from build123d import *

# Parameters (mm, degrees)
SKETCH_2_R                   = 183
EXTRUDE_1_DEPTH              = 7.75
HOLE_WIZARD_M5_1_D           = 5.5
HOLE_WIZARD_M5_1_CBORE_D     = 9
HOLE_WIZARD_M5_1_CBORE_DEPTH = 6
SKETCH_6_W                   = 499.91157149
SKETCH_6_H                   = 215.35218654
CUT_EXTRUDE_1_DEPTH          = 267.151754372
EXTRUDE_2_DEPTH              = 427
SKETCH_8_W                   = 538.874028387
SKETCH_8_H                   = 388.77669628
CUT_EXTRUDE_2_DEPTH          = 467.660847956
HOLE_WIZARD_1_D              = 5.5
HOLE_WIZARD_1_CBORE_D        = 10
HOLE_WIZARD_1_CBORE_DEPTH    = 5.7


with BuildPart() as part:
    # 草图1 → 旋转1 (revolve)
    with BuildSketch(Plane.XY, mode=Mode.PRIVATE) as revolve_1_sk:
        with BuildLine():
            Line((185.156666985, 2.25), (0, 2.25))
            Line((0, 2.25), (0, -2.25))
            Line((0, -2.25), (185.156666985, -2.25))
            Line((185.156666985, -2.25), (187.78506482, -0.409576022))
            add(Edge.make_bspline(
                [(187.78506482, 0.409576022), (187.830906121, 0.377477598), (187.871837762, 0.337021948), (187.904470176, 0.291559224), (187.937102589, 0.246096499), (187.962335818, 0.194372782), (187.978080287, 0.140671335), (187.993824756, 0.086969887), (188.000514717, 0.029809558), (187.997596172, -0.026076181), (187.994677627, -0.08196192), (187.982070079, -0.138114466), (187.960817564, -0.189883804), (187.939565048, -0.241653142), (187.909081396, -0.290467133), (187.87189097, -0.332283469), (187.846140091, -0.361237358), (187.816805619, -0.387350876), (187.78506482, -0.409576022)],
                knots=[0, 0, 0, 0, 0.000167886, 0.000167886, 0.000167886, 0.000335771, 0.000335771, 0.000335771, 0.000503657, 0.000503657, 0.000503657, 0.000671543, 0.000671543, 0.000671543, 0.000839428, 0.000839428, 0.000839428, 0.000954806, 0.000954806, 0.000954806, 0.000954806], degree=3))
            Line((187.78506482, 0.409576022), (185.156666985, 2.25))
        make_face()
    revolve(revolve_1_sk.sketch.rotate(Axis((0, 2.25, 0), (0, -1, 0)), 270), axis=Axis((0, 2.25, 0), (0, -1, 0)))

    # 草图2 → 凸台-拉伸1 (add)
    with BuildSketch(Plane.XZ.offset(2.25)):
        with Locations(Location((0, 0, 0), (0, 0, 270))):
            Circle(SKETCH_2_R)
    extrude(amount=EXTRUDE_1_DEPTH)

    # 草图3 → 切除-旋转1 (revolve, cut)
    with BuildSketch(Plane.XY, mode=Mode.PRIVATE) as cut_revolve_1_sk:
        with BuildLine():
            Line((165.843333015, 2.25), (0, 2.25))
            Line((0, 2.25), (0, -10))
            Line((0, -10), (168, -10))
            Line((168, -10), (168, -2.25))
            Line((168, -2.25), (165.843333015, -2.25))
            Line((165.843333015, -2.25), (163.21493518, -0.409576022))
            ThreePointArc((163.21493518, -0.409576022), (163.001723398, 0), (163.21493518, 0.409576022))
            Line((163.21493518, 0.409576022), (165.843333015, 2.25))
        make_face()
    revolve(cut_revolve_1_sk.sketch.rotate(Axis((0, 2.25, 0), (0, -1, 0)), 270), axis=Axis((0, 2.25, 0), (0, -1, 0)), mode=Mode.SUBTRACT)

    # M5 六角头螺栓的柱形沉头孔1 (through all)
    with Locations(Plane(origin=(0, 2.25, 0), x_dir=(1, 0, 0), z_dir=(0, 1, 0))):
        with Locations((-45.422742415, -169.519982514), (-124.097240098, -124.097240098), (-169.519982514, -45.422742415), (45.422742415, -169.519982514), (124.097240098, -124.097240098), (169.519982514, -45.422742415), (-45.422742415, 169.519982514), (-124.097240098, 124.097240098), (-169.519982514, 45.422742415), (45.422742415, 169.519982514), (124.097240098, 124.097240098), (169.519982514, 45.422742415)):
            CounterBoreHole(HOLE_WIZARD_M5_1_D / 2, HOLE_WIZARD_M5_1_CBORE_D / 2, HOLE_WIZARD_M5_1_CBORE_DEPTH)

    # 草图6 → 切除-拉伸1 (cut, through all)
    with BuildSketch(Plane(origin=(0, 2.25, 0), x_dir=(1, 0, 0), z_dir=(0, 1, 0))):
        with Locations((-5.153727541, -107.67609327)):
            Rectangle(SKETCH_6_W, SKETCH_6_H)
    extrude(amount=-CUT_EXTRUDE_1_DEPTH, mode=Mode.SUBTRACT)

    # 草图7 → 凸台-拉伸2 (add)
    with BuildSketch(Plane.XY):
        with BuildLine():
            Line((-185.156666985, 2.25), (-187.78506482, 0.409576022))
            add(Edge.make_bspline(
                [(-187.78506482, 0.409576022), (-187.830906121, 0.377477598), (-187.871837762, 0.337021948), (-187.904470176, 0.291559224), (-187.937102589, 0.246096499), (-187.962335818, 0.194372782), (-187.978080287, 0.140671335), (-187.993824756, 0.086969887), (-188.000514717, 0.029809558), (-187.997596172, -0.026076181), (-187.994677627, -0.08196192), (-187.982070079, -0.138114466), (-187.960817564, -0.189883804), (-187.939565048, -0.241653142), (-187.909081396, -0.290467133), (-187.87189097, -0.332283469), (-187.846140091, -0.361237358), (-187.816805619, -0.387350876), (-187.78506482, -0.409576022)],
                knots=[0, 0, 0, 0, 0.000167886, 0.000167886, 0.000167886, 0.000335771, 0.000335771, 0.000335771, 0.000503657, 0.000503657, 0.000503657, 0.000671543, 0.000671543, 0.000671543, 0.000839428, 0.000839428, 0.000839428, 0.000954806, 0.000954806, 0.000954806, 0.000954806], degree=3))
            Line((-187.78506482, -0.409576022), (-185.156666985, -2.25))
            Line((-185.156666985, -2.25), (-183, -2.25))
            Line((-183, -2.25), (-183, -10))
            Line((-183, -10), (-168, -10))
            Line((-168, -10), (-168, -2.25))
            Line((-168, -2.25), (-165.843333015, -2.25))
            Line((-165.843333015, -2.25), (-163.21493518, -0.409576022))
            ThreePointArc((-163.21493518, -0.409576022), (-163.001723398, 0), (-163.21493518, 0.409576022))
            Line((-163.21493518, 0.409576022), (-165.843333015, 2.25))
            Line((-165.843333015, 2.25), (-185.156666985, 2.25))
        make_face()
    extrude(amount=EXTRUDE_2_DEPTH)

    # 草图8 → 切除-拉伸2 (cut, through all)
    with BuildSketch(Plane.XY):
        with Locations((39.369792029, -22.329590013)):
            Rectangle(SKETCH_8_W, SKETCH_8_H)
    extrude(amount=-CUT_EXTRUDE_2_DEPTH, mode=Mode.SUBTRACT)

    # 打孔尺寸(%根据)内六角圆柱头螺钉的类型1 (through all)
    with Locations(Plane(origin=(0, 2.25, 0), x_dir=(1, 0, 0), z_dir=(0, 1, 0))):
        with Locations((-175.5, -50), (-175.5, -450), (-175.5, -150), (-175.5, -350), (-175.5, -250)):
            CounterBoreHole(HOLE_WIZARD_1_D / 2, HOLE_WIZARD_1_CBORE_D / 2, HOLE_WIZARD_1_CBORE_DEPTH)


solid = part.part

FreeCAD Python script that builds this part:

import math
import FreeCAD as App
import Part
import Sketcher
from FreeCAD import Vector
Q = App.Units.Quantity


def add_polygon(sketch, points):
    """Adds a closed chain of lines whose ends are joined by coincident constraints."""
    first, n = sketch.GeometryCount, len(points)
    for a, b in zip(points, points[1:] + points[:1]):
        sketch.addGeometry(Part.LineSegment(App.Vector(*a, 0), App.Vector(*b, 0)), False)
    for i in range(n):
        sketch.addConstraint(Sketcher.Constraint("Coincident", first + i, 2, first + (i + 1) % n, 1))

doc = App.newDocument("Part")
body = doc.addObject("PartDesign::Body", "Body")

sketch1 = body.newObject("Sketcher::SketchObject", "Sketch")
sketch1.AttachmentSupport = (doc.getObject("XY_Plane"), [""])
sketch1.MapMode = "FlatFace"
sketch1.addGeometry(Part.LineSegment(Vector(185.156667, 2.25, 0), Vector(0, 2.25, 0)), False)
sketch1.addGeometry(Part.LineSegment(Vector(0, 2.25, 0), Vector(0, -2.25, 0)), False)
sketch1.addGeometry(Part.LineSegment(Vector(0, -2.25, 0), Vector(185.156667, -2.25, 0)), False)
sketch1.addGeometry(Part.LineSegment(Vector(185.156667, -2.25, 0), Vector(187.785065, -0.409576, 0)), False)
sketch1.addGeometry(Part.BSplineCurve([Vector(187.785065, 0.409576, 0), Vector(187.830906, 0.377478, 0), Vector(187.871838, 0.337022, 0), Vector(187.90447, 0.291559, 0), Vector(187.937103, 0.246096, 0), Vector(187.962336, 0.194373, 0), Vector(187.97808, 0.140671, 0), Vector(187.993825, 0.08697, 0), Vector(188.000515, 0.02981, 0), Vector(187.997596, -0.026076, 0), Vector(187.994678, -0.081962, 0), Vector(187.98207, -0.138114, 0), Vector(187.960818, -0.189884, 0), Vector(187.939565, -0.241653, 0), Vector(187.909081, -0.290467, 0), Vector(187.871891, -0.332283, 0), Vector(187.84614, -0.361237, 0), Vector(187.816806, -0.387351, 0), Vector(187.785065, -0.409576, 0)], [4, 3, 3, 3, 3, 3, 4], [0, 0.000167886, 0.000335771, 0.000503657, 0.000671543, 0.000839428, 0.000954806], False, 3, [1, 1, 1, 1, 1, 1, 1, 1, 1, 1, 1, 1, 1, 1, 1, 1, 1, 1, 1], False), False)
sketch1.addGeometry(Part.LineSegment(Vector(187.785065, 0.409576, 0), Vector(185.156667, 2.25, 0)), False)
sketch1.addConstraint(Sketcher.Constraint("Block", 4))
sketch1.addConstraint(Sketcher.Constraint("Coincident", 0, 2, 1, 1))
sketch1.addConstraint(Sketcher.Constraint("Coincident", 1, 2, 2, 1))
sketch1.addConstraint(Sketcher.Constraint("Coincident", 2, 2, 3, 1))
sketch1.addConstraint(Sketcher.Constraint("Coincident", 3, 2, 4, 2))
sketch1.addConstraint(Sketcher.Constraint("Coincident", 4, 1, 5, 1))
sketch1.addConstraint(Sketcher.Constraint("Coincident", 5, 2, 0, 1))
sketch1.addConstraint(Sketcher.Constraint("Horizontal", 0))
sketch1.addConstraint(Sketcher.Constraint("Vertical", 1))
sketch1.addConstraint(Sketcher.Constraint("Horizontal", 2))
sketch1.addConstraint(Sketcher.Constraint("Symmetric", 0, 2, 1, 2, -1, 1))
sketch1.addConstraint(Sketcher.Constraint("Vertical", 2, 2, 5, 2))
sketch1.addConstraint(Sketcher.Constraint("Angle", 3, Q("35 deg")))
sketch1.addConstraint(Sketcher.Constraint("DistanceY", 1, 2, 1, 1, Q("4.5 mm")))
revolution = body.newObject("PartDesign::Revolution", "Revolution")
revolution.Profile = sketch1
revolution.ReferenceAxis = (sketch1, ["V_Axis"])
revolution.Angle = 360

sketch2 = body.newObject("Sketcher::SketchObject", "Sketch001")
sketch2.AttachmentSupport = (doc.getObject("XZ_Plane"), [""])
sketch2.MapMode = "FlatFace"
sketch2.AttachmentOffset = App.Placement(Vector(0, 0, 2.25), App.Rotation())
sketch2.addGeometry(Part.Circle(Vector(0, 0, 0), Vector(0, 0, 1), 183), False)
sketch2.addConstraint(Sketcher.Constraint("Coincident", 0, 3, -1, 1))
sketch2.addConstraint(Sketcher.Constraint("Diameter", 0, Q("366 mm")))
pad1 = body.newObject("PartDesign::Pad", "Pad")
pad1.Profile = sketch2
pad1.Length = 7.75

sketch3 = body.newObject("Sketcher::SketchObject", "Sketch002")
sketch3.AttachmentSupport = (doc.getObject("XY_Plane"), [""])
sketch3.MapMode = "FlatFace"
sketch3.addGeometry(Part.LineSegment(Vector(165.84, 2.25, 0), Vector(0, 2.25, 0)), False)
sketch3.addGeometry(Part.LineSegment(Vector(0, 2.25, 0), Vector(0, -10, 0)), False)
sketch3.addGeometry(Part.LineSegment(Vector(0, -10, 0), Vector(168, -10, 0)), False)
sketch3.addGeometry(Part.LineSegment(Vector(168, -10, 0), Vector(168, -2.25, 0)), False)
sketch3.addGeometry(Part.LineSegment(Vector(168, -2.25, 0), Vector(165.84, -2.25, 0)), False)
sketch3.addGeometry(Part.LineSegment(Vector(165.84, -2.25, 0), Vector(163.21, -0.41, 0)), False)
sketch3.addGeometry(Part.ArcOfCircle(Part.Circle(Vector(163.5, 0, 0), Vector(0, 0, 1), 0.5), math.radians(125), math.radians(235)), False)
sketch3.addGeometry(Part.LineSegment(Vector(163.21, 0.41, 0), Vector(165.84, 2.25, 0)), False)
sketch3.addConstraint(Sketcher.Constraint("Coincident", 0, 2, 1, 1))
sketch3.addConstraint(Sketcher.Constraint("Coincident", 1, 2, 2, 1))
sketch3.addConstraint(Sketcher.Constraint("Coincident", 2, 2, 3, 1))
sketch3.addConstraint(Sketcher.Constraint("Coincident", 3, 2, 4, 1))
sketch3.addConstraint(Sketcher.Constraint("Coincident", 4, 2, 5, 1))
sketch3.addConstraint(Sketcher.Constraint("Tangent", 5, 2, 6, 2))
sketch3.addConstraint(Sketcher.Constraint("Tangent", 6, 1, 7, 1))
sketch3.addConstraint(Sketcher.Constraint("Coincident", 7, 2, 0, 1))
sketch3.addConstraint(Sketcher.Constraint("Horizontal", 0))
sketch3.addConstraint(Sketcher.Constraint("Vertical", 1))
sketch3.addConstraint(Sketcher.Constraint("Horizontal", 2))
sketch3.addConstraint(Sketcher.Constraint("Vertical", 3))
sketch3.addConstraint(Sketcher.Constraint("Horizontal", 4))
sketch3.addConstraint(Sketcher.Constraint("Symmetric", 5, 2, 6, 1, -1))
sketch3.addConstraint(Sketcher.Constraint("PointOnObject", 0, 2, -2))
sketch3.addConstraint(Sketcher.Constraint("Vertical", 4, 2, 7, 2))
sketch3.addConstraint(Sketcher.Constraint("Radius", 6, Q("0.5 mm")))
sketch3.addConstraint(Sketcher.Constraint("DistanceX", 2, 1, 2, 2, Q("168 mm")))
sketch3.addConstraint(Sketcher.Constraint("Angle", 5, Q("145 deg")))
sketch3.addConstraint(Sketcher.Constraint("DistanceY", 1, 2, -1, 1, Q("10 mm")))
sketch3.addConstraint(Sketcher.Constraint("DistanceY", 1, 2, 1, 1, Q("12.25 mm")))
sketch3.addConstraint(Sketcher.Constraint("DistanceX", 0, 2, 0, 1, Q("165.843333 mm")))
groove = body.newObject("PartDesign::Groove", "Groove")
groove.Profile = sketch3
groove.ReferenceAxis = (sketch3, ["V_Axis"])
groove.Angle = 360

sketch4 = body.newObject("Sketcher::SketchObject", "Sketch003")
sketch4.AttachmentSupport = (doc.getObject("XZ_Plane"), [""])
sketch4.MapMode = "FlatFace"
sketch4.AttachmentOffset = App.Placement(Vector(0, 0, -2.25), App.Rotation())
sketch4.addGeometry(Part.Circle(Vector(-45.4, 169.5, 0), Vector(0, 0, 1), 2.8), False)
sketch4.addGeometry(Part.Circle(Vector(-124.1, 124.1, 0), Vector(0, 0, 1), 2.8), False)
sketch4.addGeometry(Part.Circle(Vector(-169.5, 45.4, 0), Vector(0, 0, 1), 2.8), False)
sketch4.addGeometry(Part.Circle(Vector(45.4, 169.5, 0), Vector(0, 0, 1), 2.8), False)
sketch4.addGeometry(Part.Circle(Vector(124.1, 124.1, 0), Vector(0, 0, 1), 2.8), False)
sketch4.addGeometry(Part.Circle(Vector(169.5, 45.4, 0), Vector(0, 0, 1), 2.8), False)
sketch4.addGeometry(Part.Circle(Vector(-45.4, -169.5, 0), Vector(0, 0, 1), 2.8), False)
sketch4.addGeometry(Part.Circle(Vector(-124.1, -124.1, 0), Vector(0, 0, 1), 2.8), False)
sketch4.addGeometry(Part.Circle(Vector(-169.5, -45.4, 0), Vector(0, 0, 1), 2.8), False)
sketch4.addGeometry(Part.Circle(Vector(45.4, -169.5, 0), Vector(0, 0, 1), 2.8), False)
sketch4.addGeometry(Part.Circle(Vector(124.1, -124.1, 0), Vector(0, 0, 1), 2.8), False)
sketch4.addGeometry(Part.Circle(Vector(169.5, -45.4, 0), Vector(0, 0, 1), 2.8), False)
sketch4.addConstraint(Sketcher.Constraint("Equal", 0, 1))
sketch4.addConstraint(Sketcher.Constraint("Equal", 1, 2))
sketch4.addConstraint(Sketcher.Constraint("Equal", 2, 3))
sketch4.addConstraint(Sketcher.Constraint("Equal", 3, 4))
sketch4.addConstraint(Sketcher.Constraint("Equal", 4, 5))
sketch4.addConstraint(Sketcher.Constraint("Equal", 5, 6))
sketch4.addConstraint(Sketcher.Constraint("Equal", 6, 7))
sketch4.addConstraint(Sketcher.Constraint("Equal", 7, 8))
sketch4.addConstraint(Sketcher.Constraint("Equal", 8, 9))
sketch4.addConstraint(Sketcher.Constraint("Equal", 9, 10))
sketch4.addConstraint(Sketcher.Constraint("Equal", 10, 11))
sketch4.addConstraint(Sketcher.Constraint("Symmetric", 3, 3, 6, 3, -1, 1))
sketch4.addConstraint(Sketcher.Constraint("Symmetric", 4, 3, 7, 3, -1, 1))
sketch4.addConstraint(Sketcher.Constraint("Symmetric", 5, 3, 8, 3, -1, 1))
sketch4.addConstraint(Sketcher.Constraint("Symmetric", 0, 3, 9, 3, -1, 1))
sketch4.addConstraint(Sketcher.Constraint("Symmetric", 1, 3, 10, 3, -1, 1))
sketch4.addConstraint(Sketcher.Constraint("Symmetric", 2, 3, 11, 3, -1, 1))
sketch4.addConstraint(Sketcher.Constraint("Symmetric", 0, 3, 3, 3, -2))
sketch4.addConstraint(Sketcher.Constraint("Symmetric", 1, 3, 4, 3, -2))
sketch4.addConstraint(Sketcher.Constraint("Symmetric", 2, 3, 5, 3, -2))
sketch4.addConstraint(Sketcher.Constraint("Diameter", 0, Q("5.5 mm")))
sketch4.addConstraint(Sketcher.Constraint("DistanceX", 1, 3, -1, 1, Q("124.09724 mm")))
sketch4.addConstraint(Sketcher.Constraint("DistanceY", -1, 1, 1, 3, Q("124.09724 mm")))
sketch4.addConstraint(Sketcher.Constraint("DistanceX", 2, 3, 0, 3, Q("124.09724 mm")))
sketch4.addConstraint(Sketcher.Constraint("DistanceY", 2, 3, 0, 3, Q("124.09724 mm")))
sketch4.addConstraint(Sketcher.Constraint("DistanceX", 0, 3, -1, 1, Q("45.422742 mm")))
sketch4.addConstraint(Sketcher.Constraint("DistanceY", -1, 1, 0, 3, Q("169.519983 mm")))
doc.recompute()
hole = body.newObject("PartDesign::Hole", "Hole")
hole.Profile = sketch4
hole.ThreadType = "None"
hole.Diameter = 5.5
hole.DepthType = "ThroughAll"
hole.HoleCutType = "Counterbore"
hole.HoleCutDiameter = 9
hole.HoleCutDepth = 6
hole.Reversed = True

sketch5 = body.newObject("Sketcher::SketchObject", "Sketch004")
sketch5.AttachmentSupport = (doc.getObject("XZ_Plane"), [""])
sketch5.MapMode = "FlatFace"
sketch5.AttachmentOffset = App.Placement(Vector(0, 0, -2.25), App.Rotation())
add_polygon(sketch5, [(-255, 0), (-255, 215), (245, 215), (245, 0)])
sketch5.addConstraint(Sketcher.Constraint("Vertical", 0))
sketch5.addConstraint(Sketcher.Constraint("Horizontal", 1))
sketch5.addConstraint(Sketcher.Constraint("Vertical", 2))
sketch5.addConstraint(Sketcher.Constraint("Horizontal", 3))
sketch5.addConstraint(Sketcher.Constraint("PointOnObject", 2, 2, -1))
sketch5.addConstraint(Sketcher.Constraint("DistanceX", 1, 1, 1, 2, Q("499.911571 mm")))
sketch5.addConstraint(Sketcher.Constraint("DistanceY", 0, 1, 0, 2, Q("215.352187 mm")))
sketch5.addConstraint(Sketcher.Constraint("DistanceX", -1, 1, 1, 2, Q("244.802058 mm")))
pocket1 = body.newObject("PartDesign::Pocket", "Pocket")
pocket1.Profile = sketch5
pocket1.Type = "ThroughAll"
pocket1.Reversed = True

sketch6 = body.newObject("Sketcher::SketchObject", "Sketch005")
sketch6.AttachmentSupport = (doc.getObject("XY_Plane"), [""])
sketch6.MapMode = "FlatFace"
sketch6.addGeometry(Part.LineSegment(Vector(-185.156667, 2.25, 0), Vector(-187.785065, 0.409576, 0)), False)
sketch6.addGeometry(Part.BSplineCurve([Vector(-187.785065, 0.409576, 0), Vector(-187.830906, 0.377478, 0), Vector(-187.871838, 0.337022, 0), Vector(-187.90447, 0.291559, 0), Vector(-187.937103, 0.246096, 0), Vector(-187.962336, 0.194373, 0), Vector(-187.97808, 0.140671, 0), Vector(-187.993825, 0.08697, 0), Vector(-188.000515, 0.02981, 0), Vector(-187.997596, -0.026076, 0), Vector(-187.994678, -0.081962, 0), Vector(-187.98207, -0.138114, 0), Vector(-187.960818, -0.189884, 0), Vector(-187.939565, -0.241653, 0), Vector(-187.909081, -0.290467, 0), Vector(-187.871891, -0.332283, 0), Vector(-187.84614, -0.361237, 0), Vector(-187.816806, -0.387351, 0), Vector(-187.785065, -0.409576, 0)], [4, 3, 3, 3, 3, 3, 4], [0, 0.000167886, 0.000335771, 0.000503657, 0.000671543, 0.000839428, 0.000954806], False, 3, [1, 1, 1, 1, 1, 1, 1, 1, 1, 1, 1, 1, 1, 1, 1, 1, 1, 1, 1], False), False)
sketch6.addGeometry(Part.LineSegment(Vector(-187.785065, -0.409576, 0), Vector(-185.156667, -2.25, 0)), False)
sketch6.addGeometry(Part.LineSegment(Vector(-185.156667, -2.25, 0), Vector(-183, -2.25, 0)), False)
sketch6.addGeometry(Part.LineSegment(Vector(-183, -2.25, 0), Vector(-183, -10, 0)), False)
sketch6.addGeometry(Part.LineSegment(Vector(-183, -10, 0), Vector(-168, -10, 0)), False)
sketch6.addGeometry(Part.LineSegment(Vector(-168, -10, 0), Vector(-168, -2.25, 0)), False)
sketch6.addGeometry(Part.LineSegment(Vector(-168, -2.25, 0), Vector(-165.843333, -2.25, 0)), False)
sketch6.addGeometry(Part.LineSegment(Vector(-165.843333, -2.25, 0), Vector(-163.214935, -0.409576, 0)), False)
sketch6.addGeometry(Part.ArcOfCircle(Part.Circle(Vector(-163.501723, 0, 0), Vector(0, 0, 1), 0.5), math.radians(-55), math.radians(55)), False)
sketch6.addGeometry(Part.LineSegment(Vector(-163.214935, 0.409576, 0), Vector(-165.843333, 2.25, 0)), False)
sketch6.addGeometry(Part.LineSegment(Vector(-165.843333, 2.25, 0), Vector(-185.156667, 2.25, 0)), False)
sketch6.addConstraint(Sketcher.Constraint("Block", 1))
sketch6.addConstraint(Sketcher.Constraint("Coincident", 0, 2, 1, 1))
sketch6.addConstraint(Sketcher.Constraint("Coincident", 1, 2, 2, 1))
sketch6.addConstraint(Sketcher.Constraint("Coincident", 2, 2, 3, 1))
sketch6.addConstraint(Sketcher.Constraint("Coincident", 3, 2, 4, 1))
sketch6.addConstraint(Sketcher.Constraint("Coincident", 4, 2, 5, 1))
sketch6.addConstraint(Sketcher.Constraint("Coincident", 5, 2, 6, 1))
sketch6.addConstraint(Sketcher.Constraint("Coincident", 6, 2, 7, 1))
sketch6.addConstraint(Sketcher.Constraint("Coincident", 7, 2, 8, 1))
sketch6.addConstraint(Sketcher.Constraint("Tangent", 8, 2, 9, 1))
sketch6.addConstraint(Sketcher.Constraint("Tangent", 9, 2, 10, 1))
sketch6.addConstraint(Sketcher.Constraint("Coincident", 10, 2, 11, 1))
sketch6.addConstraint(Sketcher.Constraint("Coincident", 11, 2, 0, 1))
sketch6.addConstraint(Sketcher.Constraint("Horizontal", 3))
sketch6.addConstraint(Sketcher.Constraint("Vertical", 4))
sketch6.addConstraint(Sketcher.Constraint("Horizontal", 5))
sketch6.addConstraint(Sketcher.Constraint("Vertical", 6))
sketch6.addConstraint(Sketcher.Constraint("Horizontal", 7))
sketch6.addConstraint(Sketcher.Constraint("Horizontal", 11))
sketch6.addConstraint(Sketcher.Constraint("Symmetric", 8, 2, 9, 2, -1))
sketch6.addConstraint(Sketcher.Constraint("Symmetric", 2, 2, 11, 2, -1))
sketch6.addConstraint(Sketcher.Constraint("Parallel", 0, 8))
sketch6.addConstraint(Sketcher.Constraint("Horizontal", 3, 2, 6, 2))
sketch6.addConstraint(Sketcher.Constraint("Horizontal", 0, 2, 9, 2))
sketch6.addConstraint(Sketcher.Constraint("Equal", 3, 7))
sketch6.addConstraint(Sketcher.Constraint("Radius", 9, Q("0.5 mm")))
sketch6.addConstraint(Sketcher.Constraint("DistanceX", 5, 1, 5, 2, Q("15 mm")))
sketch6.addConstraint(Sketcher.Constraint("DistanceX", 3, 2, -1, 1, Q("183 mm")))
sketch6.addConstraint(Sketcher.Constraint("DistanceY", 4, 2, -1, 1, Q("10 mm")))
sketch6.addConstraint(Sketcher.Constraint("DistanceY", 4, 2, 4, 1, Q("7.75 mm")))
pad2 = body.newObject("PartDesign::Pad", "Pad001")
pad2.Profile = sketch6
pad2.Length = 427

sketch7 = body.newObject("Sketcher::SketchObject", "Sketch006")
sketch7.AttachmentSupport = (doc.getObject("XY_Plane"), [""])
sketch7.MapMode = "FlatFace"
add_polygon(sketch7, [(-230, 172), (-230, -217), (309, -217), (309, 172)])
sketch7.addConstraint(Sketcher.Constraint("Vertical", 0))
sketch7.addConstraint(Sketcher.Constraint("Horizontal", 1))
sketch7.addConstraint(Sketcher.Constraint("Vertical", 2))
sketch7.addConstraint(Sketcher.Constraint("Horizontal", 3))
sketch7.addConstraint(Sketcher.Constraint("DistanceX", 1, 1, 1, 2, Q("538.874028 mm")))
sketch7.addConstraint(Sketcher.Constraint("DistanceY", 0, 2, 0, 1, Q("388.776696 mm")))
sketch7.addConstraint(Sketcher.Constraint("DistanceY", 0, 2, -1, 1, Q("216.717938 mm")))
sketch7.addConstraint(Sketcher.Constraint("DistanceX", 0, 2, -1, 1, Q("230.067222 mm")))
pocket2 = body.newObject("PartDesign::Pocket", "Pocket001")
pocket2.Profile = sketch7
pocket2.Type = "ThroughAll"

sketch8 = body.newObject("Sketcher::SketchObject", "Sketch007")
sketch8.AttachmentSupport = (doc.getObject("XZ_Plane"), [""])
sketch8.MapMode = "FlatFace"
sketch8.AttachmentOffset = App.Placement(Vector(0, 0, -2.25), App.Rotation())
sketch8.addGeometry(Part.Circle(Vector(-175.5, 50, 0), Vector(0, 0, 1), 2.8), False)
sketch8.addGeometry(Part.Circle(Vector(-175.5, 450, 0), Vector(0, 0, 1), 2.8), False)
sketch8.addGeometry(Part.Circle(Vector(-175.5, 150, 0), Vector(0, 0, 1), 2.8), False)
sketch8.addGeometry(Part.Circle(Vector(-175.5, 350, 0), Vector(0, 0, 1), 2.8), False)
sketch8.addGeometry(Part.Circle(Vector(-175.5, 250, 0), Vector(0, 0, 1), 2.8), False)
sketch8.addConstraint(Sketcher.Constraint("Equal", 0, 1))
sketch8.addConstraint(Sketcher.Constraint("Equal", 1, 2))
sketch8.addConstraint(Sketcher.Constraint("Equal", 2, 3))
sketch8.addConstraint(Sketcher.Constraint("Equal", 3, 4))
sketch8.addConstraint(Sketcher.Constraint("Vertical", 0, 3, 1, 3))
sketch8.addConstraint(Sketcher.Constraint("Vertical", 1, 3, 2, 3))
sketch8.addConstraint(Sketcher.Constraint("Vertical", 2, 3, 3, 3))
sketch8.addConstraint(Sketcher.Constraint("Vertical", 3, 3, 4, 3))
sketch8.addConstraint(Sketcher.Constraint("Diameter", 0, Q("5.5 mm")))
sketch8.addConstraint(Sketcher.Constraint("DistanceY", -1, 1, 0, 3, Q("50 mm")))
sketch8.addConstraint(Sketcher.Constraint("DistanceY", -1, 1, 1, 3, Q("450 mm")))
sketch8.addConstraint(Sketcher.Constraint("DistanceY", -1, 1, 2, 3, Q("150 mm")))
sketch8.addConstraint(Sketcher.Constraint("DistanceY", -1, 1, 3, 3, Q("350 mm")))
sketch8.addConstraint(Sketcher.Constraint("DistanceY", -1, 1, 4, 3, Q("250 mm")))
sketch8.addConstraint(Sketcher.Constraint("DistanceX", 0, 3, -1, 1, Q("175.5 mm")))
doc.recompute()
hole2 = body.newObject("PartDesign::Hole", "Hole001")
hole2.Profile = sketch8
hole2.ThreadType = "None"
hole2.Diameter = 5.5
hole2.DepthType = "ThroughAll"
hole2.HoleCutType = "Counterbore"
hole2.HoleCutDiameter = 10
hole2.HoleCutDepth = 5.7
hole2.Reversed = True

doc.recompute()
